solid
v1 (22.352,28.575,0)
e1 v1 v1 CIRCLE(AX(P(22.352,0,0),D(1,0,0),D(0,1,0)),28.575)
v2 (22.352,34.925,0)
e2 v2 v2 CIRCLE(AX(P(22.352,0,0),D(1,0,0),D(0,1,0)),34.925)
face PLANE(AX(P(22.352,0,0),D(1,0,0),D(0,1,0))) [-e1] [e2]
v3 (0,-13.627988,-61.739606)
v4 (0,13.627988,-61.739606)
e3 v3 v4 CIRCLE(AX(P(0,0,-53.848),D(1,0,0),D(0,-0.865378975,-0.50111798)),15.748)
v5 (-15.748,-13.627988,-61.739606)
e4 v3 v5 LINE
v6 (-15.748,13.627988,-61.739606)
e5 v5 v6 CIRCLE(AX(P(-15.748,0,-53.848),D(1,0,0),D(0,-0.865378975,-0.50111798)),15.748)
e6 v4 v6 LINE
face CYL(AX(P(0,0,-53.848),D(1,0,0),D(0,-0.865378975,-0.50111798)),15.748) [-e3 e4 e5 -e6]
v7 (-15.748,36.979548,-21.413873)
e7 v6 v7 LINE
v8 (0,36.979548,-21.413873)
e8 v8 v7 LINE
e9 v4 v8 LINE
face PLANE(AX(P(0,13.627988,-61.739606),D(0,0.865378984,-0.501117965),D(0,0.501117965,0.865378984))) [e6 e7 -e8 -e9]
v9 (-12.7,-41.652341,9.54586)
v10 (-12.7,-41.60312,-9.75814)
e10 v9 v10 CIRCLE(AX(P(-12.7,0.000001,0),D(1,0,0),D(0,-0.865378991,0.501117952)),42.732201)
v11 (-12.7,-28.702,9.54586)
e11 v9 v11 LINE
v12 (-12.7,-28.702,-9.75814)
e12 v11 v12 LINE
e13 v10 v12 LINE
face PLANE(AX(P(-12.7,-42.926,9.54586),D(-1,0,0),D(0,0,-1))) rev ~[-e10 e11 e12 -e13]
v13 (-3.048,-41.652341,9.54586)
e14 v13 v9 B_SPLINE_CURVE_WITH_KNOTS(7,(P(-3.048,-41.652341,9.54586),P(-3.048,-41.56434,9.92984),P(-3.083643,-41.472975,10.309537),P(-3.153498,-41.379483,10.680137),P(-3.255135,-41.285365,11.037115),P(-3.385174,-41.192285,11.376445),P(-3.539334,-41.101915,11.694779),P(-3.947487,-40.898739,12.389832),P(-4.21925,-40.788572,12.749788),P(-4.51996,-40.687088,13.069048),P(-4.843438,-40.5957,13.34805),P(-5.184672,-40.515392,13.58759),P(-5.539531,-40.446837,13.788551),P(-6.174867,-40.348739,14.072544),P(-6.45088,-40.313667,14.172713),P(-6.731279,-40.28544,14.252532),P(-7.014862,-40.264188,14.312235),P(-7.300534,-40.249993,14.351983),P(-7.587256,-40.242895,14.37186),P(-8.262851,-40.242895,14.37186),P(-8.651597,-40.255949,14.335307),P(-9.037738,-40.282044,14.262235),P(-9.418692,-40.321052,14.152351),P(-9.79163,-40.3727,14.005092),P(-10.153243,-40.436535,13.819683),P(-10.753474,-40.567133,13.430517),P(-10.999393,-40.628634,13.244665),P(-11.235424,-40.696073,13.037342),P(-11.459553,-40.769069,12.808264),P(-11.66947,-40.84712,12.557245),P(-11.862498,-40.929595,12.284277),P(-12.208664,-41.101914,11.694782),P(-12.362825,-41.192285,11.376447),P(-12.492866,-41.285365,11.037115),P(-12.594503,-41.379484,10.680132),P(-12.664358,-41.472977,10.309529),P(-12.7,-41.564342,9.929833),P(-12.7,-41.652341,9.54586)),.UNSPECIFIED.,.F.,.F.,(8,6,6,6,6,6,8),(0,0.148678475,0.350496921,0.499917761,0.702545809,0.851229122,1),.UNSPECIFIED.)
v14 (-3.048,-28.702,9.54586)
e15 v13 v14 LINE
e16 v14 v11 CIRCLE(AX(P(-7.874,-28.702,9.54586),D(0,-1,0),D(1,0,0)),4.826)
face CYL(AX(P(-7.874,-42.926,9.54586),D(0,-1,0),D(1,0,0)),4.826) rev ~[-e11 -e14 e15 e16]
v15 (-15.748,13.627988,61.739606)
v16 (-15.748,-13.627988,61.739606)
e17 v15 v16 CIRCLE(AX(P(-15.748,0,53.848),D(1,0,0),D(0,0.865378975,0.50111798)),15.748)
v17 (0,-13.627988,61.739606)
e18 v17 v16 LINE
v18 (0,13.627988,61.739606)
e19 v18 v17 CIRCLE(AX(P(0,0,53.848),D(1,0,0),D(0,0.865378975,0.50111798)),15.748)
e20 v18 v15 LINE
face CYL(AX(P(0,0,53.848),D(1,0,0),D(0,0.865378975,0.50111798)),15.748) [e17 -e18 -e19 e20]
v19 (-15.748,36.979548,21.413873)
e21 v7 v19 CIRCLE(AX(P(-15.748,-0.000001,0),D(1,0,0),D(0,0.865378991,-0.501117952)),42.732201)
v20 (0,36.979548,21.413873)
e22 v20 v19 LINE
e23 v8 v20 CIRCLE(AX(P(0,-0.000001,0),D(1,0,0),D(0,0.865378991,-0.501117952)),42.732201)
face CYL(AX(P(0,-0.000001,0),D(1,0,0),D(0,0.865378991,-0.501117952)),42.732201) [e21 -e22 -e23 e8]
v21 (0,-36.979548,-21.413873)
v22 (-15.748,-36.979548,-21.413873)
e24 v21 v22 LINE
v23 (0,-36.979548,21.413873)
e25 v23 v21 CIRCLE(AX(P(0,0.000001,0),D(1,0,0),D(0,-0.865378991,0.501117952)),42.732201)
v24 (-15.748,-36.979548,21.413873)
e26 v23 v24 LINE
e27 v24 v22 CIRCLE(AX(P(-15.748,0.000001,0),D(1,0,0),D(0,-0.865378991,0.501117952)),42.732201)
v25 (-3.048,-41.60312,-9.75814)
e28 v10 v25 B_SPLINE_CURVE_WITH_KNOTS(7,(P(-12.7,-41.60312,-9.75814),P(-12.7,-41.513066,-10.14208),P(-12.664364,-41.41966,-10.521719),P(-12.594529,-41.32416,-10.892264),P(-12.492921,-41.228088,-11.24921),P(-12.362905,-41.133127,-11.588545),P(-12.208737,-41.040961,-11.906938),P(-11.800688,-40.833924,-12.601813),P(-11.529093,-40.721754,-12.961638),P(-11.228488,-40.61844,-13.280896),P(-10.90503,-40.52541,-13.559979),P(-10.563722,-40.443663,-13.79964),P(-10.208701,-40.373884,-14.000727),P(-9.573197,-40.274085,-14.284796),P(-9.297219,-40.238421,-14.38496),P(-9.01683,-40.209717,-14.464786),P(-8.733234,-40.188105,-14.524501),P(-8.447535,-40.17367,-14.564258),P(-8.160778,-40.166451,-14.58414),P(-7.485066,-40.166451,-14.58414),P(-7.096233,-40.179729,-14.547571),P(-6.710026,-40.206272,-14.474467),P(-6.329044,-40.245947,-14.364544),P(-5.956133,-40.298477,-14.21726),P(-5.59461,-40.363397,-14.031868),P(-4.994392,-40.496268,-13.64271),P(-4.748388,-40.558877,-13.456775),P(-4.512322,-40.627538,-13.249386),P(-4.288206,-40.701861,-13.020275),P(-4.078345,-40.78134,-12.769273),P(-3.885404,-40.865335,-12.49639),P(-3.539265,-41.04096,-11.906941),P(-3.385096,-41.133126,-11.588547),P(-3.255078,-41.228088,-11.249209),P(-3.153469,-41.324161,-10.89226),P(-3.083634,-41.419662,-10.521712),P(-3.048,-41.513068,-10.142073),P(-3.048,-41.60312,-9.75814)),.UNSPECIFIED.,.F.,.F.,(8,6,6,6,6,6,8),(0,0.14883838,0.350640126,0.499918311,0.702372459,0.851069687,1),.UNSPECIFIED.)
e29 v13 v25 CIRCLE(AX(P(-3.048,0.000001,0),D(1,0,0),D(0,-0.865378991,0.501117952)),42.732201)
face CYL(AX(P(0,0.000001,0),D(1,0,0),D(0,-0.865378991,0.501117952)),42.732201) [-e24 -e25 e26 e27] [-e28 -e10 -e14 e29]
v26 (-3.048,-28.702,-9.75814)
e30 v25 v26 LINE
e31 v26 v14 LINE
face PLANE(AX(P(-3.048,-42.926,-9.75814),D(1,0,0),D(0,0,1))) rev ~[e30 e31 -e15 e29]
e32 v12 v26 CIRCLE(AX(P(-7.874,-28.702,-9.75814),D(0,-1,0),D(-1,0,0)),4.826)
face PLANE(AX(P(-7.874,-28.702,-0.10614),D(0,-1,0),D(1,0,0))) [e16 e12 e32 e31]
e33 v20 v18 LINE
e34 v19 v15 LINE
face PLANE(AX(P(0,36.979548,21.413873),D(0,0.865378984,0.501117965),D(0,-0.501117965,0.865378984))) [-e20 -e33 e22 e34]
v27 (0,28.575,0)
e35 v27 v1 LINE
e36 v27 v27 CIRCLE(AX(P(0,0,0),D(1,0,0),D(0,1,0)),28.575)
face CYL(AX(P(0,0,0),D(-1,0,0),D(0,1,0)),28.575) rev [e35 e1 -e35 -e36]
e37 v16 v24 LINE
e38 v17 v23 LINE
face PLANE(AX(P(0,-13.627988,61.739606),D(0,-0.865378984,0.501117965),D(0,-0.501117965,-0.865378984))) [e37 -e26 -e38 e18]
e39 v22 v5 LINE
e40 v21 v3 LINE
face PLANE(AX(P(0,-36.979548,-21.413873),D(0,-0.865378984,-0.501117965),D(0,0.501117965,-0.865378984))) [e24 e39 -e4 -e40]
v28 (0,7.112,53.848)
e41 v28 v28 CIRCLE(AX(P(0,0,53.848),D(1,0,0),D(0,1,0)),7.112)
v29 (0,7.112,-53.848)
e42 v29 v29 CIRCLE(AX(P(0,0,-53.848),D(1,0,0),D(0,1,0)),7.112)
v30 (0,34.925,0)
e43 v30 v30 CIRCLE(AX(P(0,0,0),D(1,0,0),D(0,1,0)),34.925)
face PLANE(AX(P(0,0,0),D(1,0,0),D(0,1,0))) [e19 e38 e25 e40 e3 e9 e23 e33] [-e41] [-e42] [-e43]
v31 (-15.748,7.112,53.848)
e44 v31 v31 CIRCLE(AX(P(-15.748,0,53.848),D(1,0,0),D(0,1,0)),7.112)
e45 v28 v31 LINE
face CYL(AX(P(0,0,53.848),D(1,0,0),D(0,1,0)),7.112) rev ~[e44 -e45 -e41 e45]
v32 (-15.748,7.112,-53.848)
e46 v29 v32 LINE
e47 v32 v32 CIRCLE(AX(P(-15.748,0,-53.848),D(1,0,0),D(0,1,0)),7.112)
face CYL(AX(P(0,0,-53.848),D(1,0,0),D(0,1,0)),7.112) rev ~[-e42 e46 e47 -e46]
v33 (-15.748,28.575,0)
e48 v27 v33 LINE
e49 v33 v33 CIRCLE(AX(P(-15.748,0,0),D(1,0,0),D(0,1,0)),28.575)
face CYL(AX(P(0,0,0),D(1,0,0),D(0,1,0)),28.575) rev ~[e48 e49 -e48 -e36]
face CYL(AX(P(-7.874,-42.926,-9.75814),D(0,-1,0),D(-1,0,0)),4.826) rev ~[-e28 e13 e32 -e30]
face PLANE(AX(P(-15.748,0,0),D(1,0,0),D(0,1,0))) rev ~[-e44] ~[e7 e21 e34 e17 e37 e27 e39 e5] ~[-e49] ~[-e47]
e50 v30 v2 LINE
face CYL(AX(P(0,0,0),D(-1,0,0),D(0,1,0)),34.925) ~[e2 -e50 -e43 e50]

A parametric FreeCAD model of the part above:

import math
import FreeCAD as App
import Part
import Sketcher

V = App.Vector
Q = App.Units.Quantity

doc = App.newDocument("Part")
body = doc.addObject("PartDesign::Body", "Body")

sketch1 = body.newObject("Sketcher::SketchObject", "Sketch")
sketch1.AttachmentSupport = (doc.getObject("YZ_Plane"), [""])
sketch1.MapMode = "FlatFace"
sketch1.addGeometry([
    Part.Circle(V(0, 0, 0), V(0, 0, 1), 35),
    Part.Circle(V(0, 0, 0), V(0, 0, 1), 29),
], False)
sketch1.addConstraint([
    Sketcher.Constraint("Coincident", 0, 3, -1, 1),
    Sketcher.Constraint("Coincident", 1, 3, -1, 1),
    Sketcher.Constraint("Diameter", 0, Q("2.75 in")),
    Sketcher.Constraint("Diameter", 1, Q("2.25 in")),
])
pad1 = body.newObject("PartDesign::Pad", "Pad")
pad1.Profile = sketch1
pad1.Length = Q("0.88 in")

sketch2 = body.newObject("Sketcher::SketchObject", "Sketch001")
sketch2.AttachmentSupport = (doc.getObject("YZ_Plane"), [""])
sketch2.MapMode = "FlatFace"
sketch2.addGeometry([
    Part.ArcOfCircle(Part.Circle(V(0, 0, 0), V(0, 0, 1), 43), math.radians(-30), math.radians(30)),
    Part.LineSegment(V(37, 21, 0), V(14, 62, 0)),
    Part.ArcOfCircle(Part.Circle(V(0, 54, 0), V(0, 0, 1), 16), math.radians(30), math.radians(150)),
    Part.LineSegment(V(-14, 62, 0), V(-37, 21, 0)),
    Part.ArcOfCircle(Part.Circle(V(0, 0, 0), V(0, 0, 1), 43), math.radians(150), math.radians(210)),
    Part.LineSegment(V(-37, -21, 0), V(-14, -62, 0)),
    Part.ArcOfCircle(Part.Circle(V(0, -54, 0), V(0, 0, 1), 16), math.radians(-150), math.radians(-30)),
    Part.LineSegment(V(14, -62, 0), V(37, -21, 0)),
    Part.Circle(V(0, -54, 0), V(0, 0, 1), 7),
    Part.Circle(V(0, 54, 0), V(0, 0, 1), 7),
], False)
sketch2.addConstraint([
    Sketcher.Constraint("Tangent", 0, 2, 1, 1),
    Sketcher.Constraint("Tangent", 1, 2, 2, 1),
    Sketcher.Constraint("Tangent", 2, 2, 3, 1),
    Sketcher.Constraint("Tangent", 3, 2, 4, 1),
    Sketcher.Constraint("Tangent", 4, 2, 5, 1),
    Sketcher.Constraint("Tangent", 5, 2, 6, 1),
    Sketcher.Constraint("Tangent", 6, 2, 7, 1),
    Sketcher.Constraint("Tangent", 7, 2, 0, 1),
    Sketcher.Constraint("Coincident", 0, 3, -1, 1),
    Sketcher.Constraint("Coincident", 4, 3, -1, 1),
    Sketcher.Constraint("Coincident", 8, 3, 6, 3),
    Sketcher.Constraint("Coincident", 9, 3, 2, 3),
    Sketcher.Constraint("Equal", 0, 4),
    Sketcher.Constraint("Equal", 2, 6),
    Sketcher.Constraint("Equal", 8, 9),
    Sketcher.Constraint("Symmetric", 2, 3, 6, 3, -1, 1),
    Sketcher.Constraint("PointOnObject", 2, 3, -2),
    Sketcher.Constraint("Diameter", 8, Q("0.56 in")),
    Sketcher.Constraint("Radius", 2, Q("0.62 in")),
    Sketcher.Constraint("DistanceY", -1, 1, 2, 3, Q("2.12 in")),
    Sketcher.Constraint("Radius", 0, Q("42.732201 mm")),
])
pad2 = body.newObject("PartDesign::Pad", "Pad001")
pad2.Profile = sketch2
pad2.Length = Q("0.62 in")
pad2.Reversed = True

sketch3 = body.newObject("Sketcher::SketchObject", "Sketch002")
sketch3.AttachmentSupport = (doc.getObject("XZ_Plane"), [""])
sketch3.MapMode = "FlatFace"
sketch3.AttachmentOffset = App.Placement(V(0, 0, 1.69 * 25.4), App.Rotation())
sketch3.addGeometry([
    Part.LineSegment(V(-12.7, 9.5, 0), V(-12.7, -9.8, 0)),
    Part.ArcOfCircle(Part.Circle(V(-7.9, -9.8, 0), V(0, 0, 1), 4.8), math.radians(180), math.radians(360)),
    Part.LineSegment(V(-3, -9.8, 0), V(-3, 9.5, 0)),
    Part.ArcOfCircle(Part.Circle(V(-7.9, 9.5, 0), V(0, 0, 1), 4.8), math.radians(0), math.radians(180)),
], False)
sketch3.addConstraint([
    Sketcher.Constraint("Tangent", 0, 2, 1, 1),
    Sketcher.Constraint("Tangent", 1, 2, 2, 1),
    Sketcher.Constraint("Tangent", 2, 2, 3, 1),
    Sketcher.Constraint("Tangent", 3, 2, 0, 1),
    Sketcher.Constraint("Vertical", 0),
    Sketcher.Constraint("Vertical", 2),
    Sketcher.Constraint("Radius", 1, Q("0.19 in")),
    Sketcher.Constraint("DistanceY", 0, 2, 0, 1, Q("0.76 in")),
    Sketcher.Constraint("DistanceX", 0, 2, -1, 1, Q("0.5 in")),
    Sketcher.Constraint("DistanceY", 1, 3, -1, 1, Q("9.75814 mm")),
])
pocket1 = body.newObject("PartDesign::Pocket", "Pocket")
pocket1.Profile = sketch3
pocket1.Length = Q("0.56 in")

sketch4 = body.newObject("Sketcher::SketchObject", "Sketch003")
sketch4.AttachmentSupport = (doc.getObject("YZ_Plane"), [""])
sketch4.MapMode = "FlatFace"
sketch4.addGeometry(Part.Circle(V(0, 0, 0), V(0, 0, 1), 29), False)
sketch4.addConstraint([
    Sketcher.Constraint("Coincident", 0, 3, -1, 1),
    Sketcher.Constraint("Diameter", 0, Q("2.25 in")),
])
pocket2 = body.newObject("PartDesign::Pocket", "Pocket001")
pocket2.Profile = sketch4
pocket2.Type = "ThroughAll"

doc.recompute()
